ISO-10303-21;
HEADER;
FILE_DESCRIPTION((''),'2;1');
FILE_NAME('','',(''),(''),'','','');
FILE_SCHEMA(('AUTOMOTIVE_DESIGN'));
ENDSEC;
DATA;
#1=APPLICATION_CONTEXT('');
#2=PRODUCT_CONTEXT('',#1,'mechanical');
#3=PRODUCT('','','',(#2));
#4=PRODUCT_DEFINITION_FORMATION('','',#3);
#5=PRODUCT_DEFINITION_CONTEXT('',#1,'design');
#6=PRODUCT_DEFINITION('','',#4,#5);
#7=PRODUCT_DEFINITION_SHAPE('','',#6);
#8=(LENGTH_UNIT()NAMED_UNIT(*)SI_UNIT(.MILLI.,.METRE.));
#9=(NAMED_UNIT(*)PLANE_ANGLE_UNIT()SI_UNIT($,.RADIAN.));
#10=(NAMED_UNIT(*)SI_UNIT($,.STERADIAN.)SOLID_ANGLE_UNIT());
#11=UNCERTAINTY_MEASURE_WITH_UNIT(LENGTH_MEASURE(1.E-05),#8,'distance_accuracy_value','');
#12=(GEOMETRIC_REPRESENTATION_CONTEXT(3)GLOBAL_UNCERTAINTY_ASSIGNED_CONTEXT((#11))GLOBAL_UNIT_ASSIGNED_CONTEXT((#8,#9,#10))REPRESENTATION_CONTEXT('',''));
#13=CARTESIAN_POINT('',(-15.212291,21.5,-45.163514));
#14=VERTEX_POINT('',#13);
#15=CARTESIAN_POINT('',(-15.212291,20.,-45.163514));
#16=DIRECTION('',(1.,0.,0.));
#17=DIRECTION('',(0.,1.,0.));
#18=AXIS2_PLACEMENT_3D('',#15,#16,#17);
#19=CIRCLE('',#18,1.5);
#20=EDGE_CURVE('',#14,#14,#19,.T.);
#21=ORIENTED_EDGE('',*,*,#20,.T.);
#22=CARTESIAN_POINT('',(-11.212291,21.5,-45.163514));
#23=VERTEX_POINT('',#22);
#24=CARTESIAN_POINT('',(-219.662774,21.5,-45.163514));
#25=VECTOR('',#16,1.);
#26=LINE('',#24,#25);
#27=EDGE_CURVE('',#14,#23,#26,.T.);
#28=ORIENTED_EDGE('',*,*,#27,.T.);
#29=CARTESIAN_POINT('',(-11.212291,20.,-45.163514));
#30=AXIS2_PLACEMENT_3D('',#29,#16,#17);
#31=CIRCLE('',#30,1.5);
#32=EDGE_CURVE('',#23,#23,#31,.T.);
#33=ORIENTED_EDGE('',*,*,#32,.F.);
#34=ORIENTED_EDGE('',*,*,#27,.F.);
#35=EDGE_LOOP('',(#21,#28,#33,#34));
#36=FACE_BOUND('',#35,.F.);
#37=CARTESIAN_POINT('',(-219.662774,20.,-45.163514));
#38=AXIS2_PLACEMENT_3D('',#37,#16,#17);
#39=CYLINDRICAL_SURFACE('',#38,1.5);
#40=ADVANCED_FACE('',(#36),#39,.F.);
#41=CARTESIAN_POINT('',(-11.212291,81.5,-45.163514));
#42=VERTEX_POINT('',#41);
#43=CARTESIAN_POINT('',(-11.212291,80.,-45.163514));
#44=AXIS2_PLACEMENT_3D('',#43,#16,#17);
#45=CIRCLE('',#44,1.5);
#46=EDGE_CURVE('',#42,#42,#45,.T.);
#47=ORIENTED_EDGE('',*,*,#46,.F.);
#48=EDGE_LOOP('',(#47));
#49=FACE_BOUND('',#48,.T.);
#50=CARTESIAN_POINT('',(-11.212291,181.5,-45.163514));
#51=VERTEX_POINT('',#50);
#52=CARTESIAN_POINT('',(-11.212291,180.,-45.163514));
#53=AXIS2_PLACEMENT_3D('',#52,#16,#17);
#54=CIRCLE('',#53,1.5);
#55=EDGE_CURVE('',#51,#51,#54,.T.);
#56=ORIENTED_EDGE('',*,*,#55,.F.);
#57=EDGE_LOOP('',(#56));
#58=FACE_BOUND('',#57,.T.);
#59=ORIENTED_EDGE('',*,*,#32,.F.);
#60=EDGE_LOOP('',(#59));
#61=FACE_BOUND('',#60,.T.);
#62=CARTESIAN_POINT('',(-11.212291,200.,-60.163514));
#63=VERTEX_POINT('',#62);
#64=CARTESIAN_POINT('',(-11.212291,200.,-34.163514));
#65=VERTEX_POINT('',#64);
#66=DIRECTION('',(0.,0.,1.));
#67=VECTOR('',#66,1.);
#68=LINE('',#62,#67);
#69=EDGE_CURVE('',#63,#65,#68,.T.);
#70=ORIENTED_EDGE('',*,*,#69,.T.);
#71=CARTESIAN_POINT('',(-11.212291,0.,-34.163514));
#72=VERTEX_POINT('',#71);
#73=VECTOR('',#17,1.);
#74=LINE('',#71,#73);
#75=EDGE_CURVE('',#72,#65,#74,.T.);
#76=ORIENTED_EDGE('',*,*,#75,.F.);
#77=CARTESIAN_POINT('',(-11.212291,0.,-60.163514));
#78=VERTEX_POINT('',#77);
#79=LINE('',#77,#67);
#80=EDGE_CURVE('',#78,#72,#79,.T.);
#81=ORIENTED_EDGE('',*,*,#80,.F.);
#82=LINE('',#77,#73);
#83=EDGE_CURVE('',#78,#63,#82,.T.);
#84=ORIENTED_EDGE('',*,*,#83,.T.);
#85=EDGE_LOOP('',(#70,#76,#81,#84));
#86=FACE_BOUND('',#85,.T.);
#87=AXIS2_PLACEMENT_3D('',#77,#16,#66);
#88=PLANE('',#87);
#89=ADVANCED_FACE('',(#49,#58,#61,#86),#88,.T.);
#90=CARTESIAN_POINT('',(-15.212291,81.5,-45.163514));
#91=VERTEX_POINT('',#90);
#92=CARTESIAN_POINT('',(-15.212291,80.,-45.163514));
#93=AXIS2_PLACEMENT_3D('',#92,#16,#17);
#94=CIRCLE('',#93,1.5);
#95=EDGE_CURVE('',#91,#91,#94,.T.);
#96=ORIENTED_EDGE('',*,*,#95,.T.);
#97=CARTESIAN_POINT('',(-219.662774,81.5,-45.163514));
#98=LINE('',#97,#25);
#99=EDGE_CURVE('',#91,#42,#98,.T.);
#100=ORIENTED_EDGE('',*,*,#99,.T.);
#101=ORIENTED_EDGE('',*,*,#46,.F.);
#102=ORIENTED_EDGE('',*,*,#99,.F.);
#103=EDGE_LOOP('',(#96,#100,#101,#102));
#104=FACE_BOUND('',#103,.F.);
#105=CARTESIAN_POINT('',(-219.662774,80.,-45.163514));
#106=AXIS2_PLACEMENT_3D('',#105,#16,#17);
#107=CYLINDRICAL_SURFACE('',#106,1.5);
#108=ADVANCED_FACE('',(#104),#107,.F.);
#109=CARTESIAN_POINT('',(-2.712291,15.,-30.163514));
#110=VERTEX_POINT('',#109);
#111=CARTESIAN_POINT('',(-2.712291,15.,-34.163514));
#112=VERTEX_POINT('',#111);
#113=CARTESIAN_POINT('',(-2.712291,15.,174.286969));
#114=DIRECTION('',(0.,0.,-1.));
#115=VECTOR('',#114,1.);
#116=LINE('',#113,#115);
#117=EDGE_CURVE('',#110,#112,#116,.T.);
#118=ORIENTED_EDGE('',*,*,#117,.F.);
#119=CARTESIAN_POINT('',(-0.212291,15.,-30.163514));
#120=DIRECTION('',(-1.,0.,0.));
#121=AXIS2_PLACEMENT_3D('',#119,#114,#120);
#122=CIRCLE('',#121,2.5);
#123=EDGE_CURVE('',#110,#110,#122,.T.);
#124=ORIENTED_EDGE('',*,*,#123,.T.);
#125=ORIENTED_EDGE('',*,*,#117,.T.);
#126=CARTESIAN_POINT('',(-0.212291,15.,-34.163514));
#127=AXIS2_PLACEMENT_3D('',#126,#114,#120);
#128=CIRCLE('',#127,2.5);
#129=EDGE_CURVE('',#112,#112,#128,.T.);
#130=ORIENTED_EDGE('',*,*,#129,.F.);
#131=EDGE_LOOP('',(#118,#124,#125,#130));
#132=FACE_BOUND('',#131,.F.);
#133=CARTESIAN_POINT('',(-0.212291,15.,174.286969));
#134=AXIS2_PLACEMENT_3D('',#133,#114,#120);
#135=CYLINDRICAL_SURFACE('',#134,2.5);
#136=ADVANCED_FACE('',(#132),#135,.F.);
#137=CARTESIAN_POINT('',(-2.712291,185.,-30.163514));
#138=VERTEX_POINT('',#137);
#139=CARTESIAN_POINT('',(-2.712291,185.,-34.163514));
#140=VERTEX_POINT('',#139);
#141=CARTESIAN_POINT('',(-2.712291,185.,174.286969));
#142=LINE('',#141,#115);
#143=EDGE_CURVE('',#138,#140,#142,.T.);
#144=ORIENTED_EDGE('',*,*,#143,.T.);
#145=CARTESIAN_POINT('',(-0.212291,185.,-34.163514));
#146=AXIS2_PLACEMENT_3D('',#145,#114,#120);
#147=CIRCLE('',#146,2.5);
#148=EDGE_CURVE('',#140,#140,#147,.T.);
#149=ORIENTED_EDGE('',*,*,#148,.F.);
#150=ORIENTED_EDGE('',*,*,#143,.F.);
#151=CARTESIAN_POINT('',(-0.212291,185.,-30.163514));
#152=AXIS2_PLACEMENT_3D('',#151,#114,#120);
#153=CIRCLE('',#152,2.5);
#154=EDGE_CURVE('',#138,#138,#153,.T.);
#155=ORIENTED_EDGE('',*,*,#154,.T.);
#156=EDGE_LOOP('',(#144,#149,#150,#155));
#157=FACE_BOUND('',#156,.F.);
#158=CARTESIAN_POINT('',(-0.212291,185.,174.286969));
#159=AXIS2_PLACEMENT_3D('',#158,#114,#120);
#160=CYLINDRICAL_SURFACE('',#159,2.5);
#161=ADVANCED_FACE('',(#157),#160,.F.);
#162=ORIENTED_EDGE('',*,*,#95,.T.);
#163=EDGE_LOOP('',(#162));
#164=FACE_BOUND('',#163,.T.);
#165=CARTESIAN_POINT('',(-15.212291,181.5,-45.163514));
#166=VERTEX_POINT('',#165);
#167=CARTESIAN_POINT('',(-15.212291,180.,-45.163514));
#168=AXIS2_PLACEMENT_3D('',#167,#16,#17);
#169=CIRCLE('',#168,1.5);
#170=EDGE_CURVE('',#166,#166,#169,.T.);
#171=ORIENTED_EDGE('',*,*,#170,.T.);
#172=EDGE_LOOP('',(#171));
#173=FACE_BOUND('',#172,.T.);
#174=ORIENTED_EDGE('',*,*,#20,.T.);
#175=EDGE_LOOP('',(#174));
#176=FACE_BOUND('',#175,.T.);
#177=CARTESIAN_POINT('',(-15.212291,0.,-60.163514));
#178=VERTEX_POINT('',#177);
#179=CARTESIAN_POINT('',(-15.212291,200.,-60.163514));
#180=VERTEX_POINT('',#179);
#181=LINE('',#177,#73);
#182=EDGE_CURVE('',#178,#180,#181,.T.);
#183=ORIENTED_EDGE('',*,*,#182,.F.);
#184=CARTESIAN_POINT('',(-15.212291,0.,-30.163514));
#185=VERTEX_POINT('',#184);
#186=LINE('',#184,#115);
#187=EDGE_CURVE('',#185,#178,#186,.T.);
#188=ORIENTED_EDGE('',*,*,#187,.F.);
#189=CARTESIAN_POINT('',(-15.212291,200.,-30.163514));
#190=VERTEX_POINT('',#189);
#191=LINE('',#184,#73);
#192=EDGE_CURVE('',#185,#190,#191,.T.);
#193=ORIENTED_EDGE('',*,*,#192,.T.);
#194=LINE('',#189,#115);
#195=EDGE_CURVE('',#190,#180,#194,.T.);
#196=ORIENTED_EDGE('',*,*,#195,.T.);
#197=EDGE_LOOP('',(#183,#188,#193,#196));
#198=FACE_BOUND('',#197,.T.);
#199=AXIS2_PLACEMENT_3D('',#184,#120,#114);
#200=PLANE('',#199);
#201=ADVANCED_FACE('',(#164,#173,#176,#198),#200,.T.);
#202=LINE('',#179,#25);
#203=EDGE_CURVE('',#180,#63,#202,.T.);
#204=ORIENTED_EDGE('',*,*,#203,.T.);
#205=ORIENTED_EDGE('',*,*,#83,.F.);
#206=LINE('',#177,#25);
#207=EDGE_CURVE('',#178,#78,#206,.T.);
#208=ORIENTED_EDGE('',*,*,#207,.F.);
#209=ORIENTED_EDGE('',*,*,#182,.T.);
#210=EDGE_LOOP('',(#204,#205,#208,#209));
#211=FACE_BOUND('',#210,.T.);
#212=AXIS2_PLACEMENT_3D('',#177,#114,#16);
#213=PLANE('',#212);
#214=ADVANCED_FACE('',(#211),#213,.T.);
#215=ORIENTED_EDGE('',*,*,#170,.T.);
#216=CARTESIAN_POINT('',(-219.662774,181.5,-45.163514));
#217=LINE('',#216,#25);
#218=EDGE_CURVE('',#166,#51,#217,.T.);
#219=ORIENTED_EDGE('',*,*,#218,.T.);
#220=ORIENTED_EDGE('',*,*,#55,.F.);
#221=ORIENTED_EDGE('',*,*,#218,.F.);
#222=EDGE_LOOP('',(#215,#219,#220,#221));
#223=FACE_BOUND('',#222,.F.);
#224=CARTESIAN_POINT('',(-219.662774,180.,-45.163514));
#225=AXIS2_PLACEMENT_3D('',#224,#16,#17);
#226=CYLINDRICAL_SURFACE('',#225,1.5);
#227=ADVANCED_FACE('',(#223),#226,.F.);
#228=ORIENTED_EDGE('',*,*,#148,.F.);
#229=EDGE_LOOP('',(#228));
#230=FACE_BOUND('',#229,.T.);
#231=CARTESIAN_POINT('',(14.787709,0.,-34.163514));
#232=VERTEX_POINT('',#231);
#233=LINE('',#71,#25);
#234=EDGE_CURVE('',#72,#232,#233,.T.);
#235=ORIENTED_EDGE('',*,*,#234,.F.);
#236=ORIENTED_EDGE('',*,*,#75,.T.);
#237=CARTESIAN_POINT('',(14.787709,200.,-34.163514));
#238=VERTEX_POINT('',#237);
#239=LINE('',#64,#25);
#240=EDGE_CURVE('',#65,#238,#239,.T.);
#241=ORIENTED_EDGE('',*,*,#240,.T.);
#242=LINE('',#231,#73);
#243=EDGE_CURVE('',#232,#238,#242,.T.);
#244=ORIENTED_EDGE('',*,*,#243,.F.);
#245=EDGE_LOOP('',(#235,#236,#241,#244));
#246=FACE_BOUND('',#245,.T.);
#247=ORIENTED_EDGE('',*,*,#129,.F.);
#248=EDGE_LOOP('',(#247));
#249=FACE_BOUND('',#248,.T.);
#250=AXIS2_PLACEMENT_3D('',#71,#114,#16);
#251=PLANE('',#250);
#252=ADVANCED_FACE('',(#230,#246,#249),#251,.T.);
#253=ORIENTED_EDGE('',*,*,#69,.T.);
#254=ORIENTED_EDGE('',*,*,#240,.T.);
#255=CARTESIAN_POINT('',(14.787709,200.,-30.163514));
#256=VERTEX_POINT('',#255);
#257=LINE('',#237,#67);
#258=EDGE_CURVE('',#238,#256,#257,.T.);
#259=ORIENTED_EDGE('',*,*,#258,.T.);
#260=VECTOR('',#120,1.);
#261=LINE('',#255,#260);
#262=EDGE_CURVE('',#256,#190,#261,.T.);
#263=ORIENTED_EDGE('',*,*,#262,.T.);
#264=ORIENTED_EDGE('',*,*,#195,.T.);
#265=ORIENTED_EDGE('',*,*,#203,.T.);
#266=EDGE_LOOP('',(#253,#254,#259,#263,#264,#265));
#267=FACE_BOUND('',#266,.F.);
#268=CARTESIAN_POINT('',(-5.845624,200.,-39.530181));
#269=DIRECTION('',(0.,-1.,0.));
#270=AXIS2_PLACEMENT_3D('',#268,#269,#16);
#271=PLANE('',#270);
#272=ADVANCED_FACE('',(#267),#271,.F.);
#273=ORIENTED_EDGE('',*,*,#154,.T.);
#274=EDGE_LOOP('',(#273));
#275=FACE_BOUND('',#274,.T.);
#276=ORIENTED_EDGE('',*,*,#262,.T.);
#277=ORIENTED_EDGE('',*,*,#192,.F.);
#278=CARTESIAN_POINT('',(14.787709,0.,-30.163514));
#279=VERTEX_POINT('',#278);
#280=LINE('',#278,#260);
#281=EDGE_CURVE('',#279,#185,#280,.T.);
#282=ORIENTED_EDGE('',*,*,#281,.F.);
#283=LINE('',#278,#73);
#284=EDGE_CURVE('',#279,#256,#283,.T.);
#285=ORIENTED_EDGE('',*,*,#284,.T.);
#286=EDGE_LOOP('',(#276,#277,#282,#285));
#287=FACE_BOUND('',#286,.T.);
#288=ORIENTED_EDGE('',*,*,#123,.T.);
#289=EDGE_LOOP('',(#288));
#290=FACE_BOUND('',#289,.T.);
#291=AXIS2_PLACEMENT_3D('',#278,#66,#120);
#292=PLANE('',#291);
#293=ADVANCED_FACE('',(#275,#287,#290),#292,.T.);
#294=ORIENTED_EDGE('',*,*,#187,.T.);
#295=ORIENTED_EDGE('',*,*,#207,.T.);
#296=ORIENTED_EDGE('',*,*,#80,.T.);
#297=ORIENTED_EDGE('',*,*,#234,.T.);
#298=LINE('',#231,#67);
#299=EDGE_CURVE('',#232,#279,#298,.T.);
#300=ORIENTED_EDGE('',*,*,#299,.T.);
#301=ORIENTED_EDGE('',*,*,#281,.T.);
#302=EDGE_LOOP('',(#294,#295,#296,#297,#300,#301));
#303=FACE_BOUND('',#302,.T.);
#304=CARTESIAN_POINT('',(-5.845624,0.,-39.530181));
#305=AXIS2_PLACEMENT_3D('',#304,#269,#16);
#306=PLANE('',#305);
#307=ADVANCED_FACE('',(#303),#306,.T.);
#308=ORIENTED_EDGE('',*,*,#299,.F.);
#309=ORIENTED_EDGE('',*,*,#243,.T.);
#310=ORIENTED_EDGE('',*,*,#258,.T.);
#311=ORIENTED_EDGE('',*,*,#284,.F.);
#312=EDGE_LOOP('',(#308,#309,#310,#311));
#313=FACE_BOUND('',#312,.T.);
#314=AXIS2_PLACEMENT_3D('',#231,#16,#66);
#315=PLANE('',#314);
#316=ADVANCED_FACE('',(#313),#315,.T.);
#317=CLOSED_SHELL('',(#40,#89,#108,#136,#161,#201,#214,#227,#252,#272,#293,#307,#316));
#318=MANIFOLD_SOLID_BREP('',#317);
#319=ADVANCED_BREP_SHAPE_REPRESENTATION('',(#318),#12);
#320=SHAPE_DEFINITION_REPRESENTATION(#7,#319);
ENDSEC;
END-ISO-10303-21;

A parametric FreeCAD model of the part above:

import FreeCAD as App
import Part
import Sketcher
Q = App.Units.Quantity


def add_polygon(sketch, points):
    """Adds a closed chain of lines whose ends are joined by coincident constraints."""
    first, n = sketch.GeometryCount, len(points)
    for a, b in zip(points, points[1:] + points[:1]):
        sketch.addGeometry(Part.LineSegment(App.Vector(*a, 0), App.Vector(*b, 0)), False)
    for i in range(n):
        sketch.addConstraint(Sketcher.Constraint("Coincident", first + i, 2, first + (i + 1) % n, 1))

doc = App.newDocument("Part")
body = doc.addObject("PartDesign::Body", "Body")

# Sketch on XZ plane
sketch1 = body.newObject("Sketcher::SketchObject", "Sketch")
sketch1.AttachmentSupport = (doc.getObject("XZ_Plane"), [""])
sketch1.MapMode = "FlatFace"
add_polygon(sketch1, [(-11.2, -34.2), (14.8, -34.2), (14.8, -30.2), (-15.2, -30.2), (-15.2, -60.2), (-11.2, -60.2)])  # lines 0-5
sketch1.addConstraint(Sketcher.Constraint("Horizontal", 0))
sketch1.addConstraint(Sketcher.Constraint("Vertical", 1))
sketch1.addConstraint(Sketcher.Constraint("Horizontal", 2))
sketch1.addConstraint(Sketcher.Constraint("Vertical", 3))
sketch1.addConstraint(Sketcher.Constraint("Horizontal", 4))
sketch1.addConstraint(Sketcher.Constraint("Vertical", 5))
sketch1.addConstraint(Sketcher.Constraint("Equal", 4, 1))
sketch1.addConstraint(Sketcher.Constraint("Equal", 2, 3))
sketch1.addConstraint(Sketcher.Constraint("DistanceX", 0, 1, 0, 2, Q("26 mm")))
sketch1.addConstraint(Sketcher.Constraint("DistanceX", 2, 2, 2, 1, Q("30 mm")))
sketch1.addConstraint(Sketcher.Constraint("DistanceX", -1, 1, 0, 2, Q("14.787709 mm")))
sketch1.addConstraint(Sketcher.Constraint("DistanceY", 0, 2, -1, 1, Q("34.163514 mm")))
pad1 = body.newObject("PartDesign::Pad", "Pad")
pad1.Profile = sketch1
pad1.Length = 200
pad1.Reversed = True

# Sketch on YZ plane
sketch2 = body.newObject("Sketcher::SketchObject", "Sketch001")
sketch2.AttachmentSupport = (doc.getObject("YZ_Plane"), [""])
sketch2.MapMode = "FlatFace"
sketch2.AttachmentOffset = App.Placement(App.Vector(0, 0, -15.212291), App.Rotation())
sketch2.addGeometry(Part.Circle(App.Vector(20, -45.2, 0), App.Vector(0, 0, 1), 1.5), False)
sketch2.addGeometry(Part.Circle(App.Vector(80, -45.2, 0), App.Vector(0, 0, 1), 1.5), False)
sketch2.addGeometry(Part.Circle(App.Vector(180, -45.2, 0), App.Vector(0, 0, 1), 1.5), False)
sketch2.addConstraint(Sketcher.Constraint("Equal", 0, 1))
sketch2.addConstraint(Sketcher.Constraint("Equal", 1, 2))
sketch2.addConstraint(Sketcher.Constraint("Horizontal", 0, 3, 1, 3))
sketch2.addConstraint(Sketcher.Constraint("Horizontal", 1, 3, 2, 3))
sketch2.addConstraint(Sketcher.Constraint("Diameter", 0, Q("3 mm")))
sketch2.addConstraint(Sketcher.Constraint("DistanceX", -1, 1, 0, 3, Q("20 mm")))
sketch2.addConstraint(Sketcher.Constraint("DistanceX", -1, 1, 1, 3, Q("80 mm")))
sketch2.addConstraint(Sketcher.Constraint("DistanceX", -1, 1, 2, 3, Q("180 mm")))
sketch2.addConstraint(Sketcher.Constraint("DistanceY", 0, 3, -1, 1, Q("45.163514 mm")))
doc.recompute()
hole = body.newObject("PartDesign::Hole", "Hole")
hole.Profile = sketch2
hole.ThreadType = "None"
hole.Diameter = 3
hole.DepthType = "ThroughAll"
hole.Reversed = True

# Sketch on XY plane
sketch3 = body.newObject("Sketcher::SketchObject", "Sketch002")
sketch3.AttachmentSupport = (doc.getObject("XY_Plane"), [""])
sketch3.MapMode = "FlatFace"
sketch3.AttachmentOffset = App.Placement(App.Vector(0, 0, -30.163514), App.Rotation())
sketch3.addGeometry(Part.Circle(App.Vector(-0.2, 185, 0), App.Vector(0, 0, 1), 2.5), False)
sketch3.addGeometry(Part.Circle(App.Vector(-0.2, 15, 0), App.Vector(0, 0, 1), 2.5), False)
sketch3.addConstraint(Sketcher.Constraint("Equal", 0, 1))
sketch3.addConstraint(Sketcher.Constraint("Vertical", 0, 3, 1, 3))
sketch3.addConstraint(Sketcher.Constraint("Diameter", 0, Q("5 mm")))
sketch3.addConstraint(Sketcher.Constraint("DistanceY", -1, 1, 0, 3, Q("185 mm")))
sketch3.addConstraint(Sketcher.Constraint("DistanceY", -1, 1, 1, 3, Q("15 mm")))
sketch3.addConstraint(Sketcher.Constraint("DistanceX", 0, 3, -1, 1, Q("0.212291 mm")))
doc.recompute()
hole2 = body.newObject("PartDesign::Hole", "Hole001")
hole2.Profile = sketch3
hole2.ThreadType = "None"
hole2.Diameter = 5
hole2.DepthType = "ThroughAll"

doc.recompute()
